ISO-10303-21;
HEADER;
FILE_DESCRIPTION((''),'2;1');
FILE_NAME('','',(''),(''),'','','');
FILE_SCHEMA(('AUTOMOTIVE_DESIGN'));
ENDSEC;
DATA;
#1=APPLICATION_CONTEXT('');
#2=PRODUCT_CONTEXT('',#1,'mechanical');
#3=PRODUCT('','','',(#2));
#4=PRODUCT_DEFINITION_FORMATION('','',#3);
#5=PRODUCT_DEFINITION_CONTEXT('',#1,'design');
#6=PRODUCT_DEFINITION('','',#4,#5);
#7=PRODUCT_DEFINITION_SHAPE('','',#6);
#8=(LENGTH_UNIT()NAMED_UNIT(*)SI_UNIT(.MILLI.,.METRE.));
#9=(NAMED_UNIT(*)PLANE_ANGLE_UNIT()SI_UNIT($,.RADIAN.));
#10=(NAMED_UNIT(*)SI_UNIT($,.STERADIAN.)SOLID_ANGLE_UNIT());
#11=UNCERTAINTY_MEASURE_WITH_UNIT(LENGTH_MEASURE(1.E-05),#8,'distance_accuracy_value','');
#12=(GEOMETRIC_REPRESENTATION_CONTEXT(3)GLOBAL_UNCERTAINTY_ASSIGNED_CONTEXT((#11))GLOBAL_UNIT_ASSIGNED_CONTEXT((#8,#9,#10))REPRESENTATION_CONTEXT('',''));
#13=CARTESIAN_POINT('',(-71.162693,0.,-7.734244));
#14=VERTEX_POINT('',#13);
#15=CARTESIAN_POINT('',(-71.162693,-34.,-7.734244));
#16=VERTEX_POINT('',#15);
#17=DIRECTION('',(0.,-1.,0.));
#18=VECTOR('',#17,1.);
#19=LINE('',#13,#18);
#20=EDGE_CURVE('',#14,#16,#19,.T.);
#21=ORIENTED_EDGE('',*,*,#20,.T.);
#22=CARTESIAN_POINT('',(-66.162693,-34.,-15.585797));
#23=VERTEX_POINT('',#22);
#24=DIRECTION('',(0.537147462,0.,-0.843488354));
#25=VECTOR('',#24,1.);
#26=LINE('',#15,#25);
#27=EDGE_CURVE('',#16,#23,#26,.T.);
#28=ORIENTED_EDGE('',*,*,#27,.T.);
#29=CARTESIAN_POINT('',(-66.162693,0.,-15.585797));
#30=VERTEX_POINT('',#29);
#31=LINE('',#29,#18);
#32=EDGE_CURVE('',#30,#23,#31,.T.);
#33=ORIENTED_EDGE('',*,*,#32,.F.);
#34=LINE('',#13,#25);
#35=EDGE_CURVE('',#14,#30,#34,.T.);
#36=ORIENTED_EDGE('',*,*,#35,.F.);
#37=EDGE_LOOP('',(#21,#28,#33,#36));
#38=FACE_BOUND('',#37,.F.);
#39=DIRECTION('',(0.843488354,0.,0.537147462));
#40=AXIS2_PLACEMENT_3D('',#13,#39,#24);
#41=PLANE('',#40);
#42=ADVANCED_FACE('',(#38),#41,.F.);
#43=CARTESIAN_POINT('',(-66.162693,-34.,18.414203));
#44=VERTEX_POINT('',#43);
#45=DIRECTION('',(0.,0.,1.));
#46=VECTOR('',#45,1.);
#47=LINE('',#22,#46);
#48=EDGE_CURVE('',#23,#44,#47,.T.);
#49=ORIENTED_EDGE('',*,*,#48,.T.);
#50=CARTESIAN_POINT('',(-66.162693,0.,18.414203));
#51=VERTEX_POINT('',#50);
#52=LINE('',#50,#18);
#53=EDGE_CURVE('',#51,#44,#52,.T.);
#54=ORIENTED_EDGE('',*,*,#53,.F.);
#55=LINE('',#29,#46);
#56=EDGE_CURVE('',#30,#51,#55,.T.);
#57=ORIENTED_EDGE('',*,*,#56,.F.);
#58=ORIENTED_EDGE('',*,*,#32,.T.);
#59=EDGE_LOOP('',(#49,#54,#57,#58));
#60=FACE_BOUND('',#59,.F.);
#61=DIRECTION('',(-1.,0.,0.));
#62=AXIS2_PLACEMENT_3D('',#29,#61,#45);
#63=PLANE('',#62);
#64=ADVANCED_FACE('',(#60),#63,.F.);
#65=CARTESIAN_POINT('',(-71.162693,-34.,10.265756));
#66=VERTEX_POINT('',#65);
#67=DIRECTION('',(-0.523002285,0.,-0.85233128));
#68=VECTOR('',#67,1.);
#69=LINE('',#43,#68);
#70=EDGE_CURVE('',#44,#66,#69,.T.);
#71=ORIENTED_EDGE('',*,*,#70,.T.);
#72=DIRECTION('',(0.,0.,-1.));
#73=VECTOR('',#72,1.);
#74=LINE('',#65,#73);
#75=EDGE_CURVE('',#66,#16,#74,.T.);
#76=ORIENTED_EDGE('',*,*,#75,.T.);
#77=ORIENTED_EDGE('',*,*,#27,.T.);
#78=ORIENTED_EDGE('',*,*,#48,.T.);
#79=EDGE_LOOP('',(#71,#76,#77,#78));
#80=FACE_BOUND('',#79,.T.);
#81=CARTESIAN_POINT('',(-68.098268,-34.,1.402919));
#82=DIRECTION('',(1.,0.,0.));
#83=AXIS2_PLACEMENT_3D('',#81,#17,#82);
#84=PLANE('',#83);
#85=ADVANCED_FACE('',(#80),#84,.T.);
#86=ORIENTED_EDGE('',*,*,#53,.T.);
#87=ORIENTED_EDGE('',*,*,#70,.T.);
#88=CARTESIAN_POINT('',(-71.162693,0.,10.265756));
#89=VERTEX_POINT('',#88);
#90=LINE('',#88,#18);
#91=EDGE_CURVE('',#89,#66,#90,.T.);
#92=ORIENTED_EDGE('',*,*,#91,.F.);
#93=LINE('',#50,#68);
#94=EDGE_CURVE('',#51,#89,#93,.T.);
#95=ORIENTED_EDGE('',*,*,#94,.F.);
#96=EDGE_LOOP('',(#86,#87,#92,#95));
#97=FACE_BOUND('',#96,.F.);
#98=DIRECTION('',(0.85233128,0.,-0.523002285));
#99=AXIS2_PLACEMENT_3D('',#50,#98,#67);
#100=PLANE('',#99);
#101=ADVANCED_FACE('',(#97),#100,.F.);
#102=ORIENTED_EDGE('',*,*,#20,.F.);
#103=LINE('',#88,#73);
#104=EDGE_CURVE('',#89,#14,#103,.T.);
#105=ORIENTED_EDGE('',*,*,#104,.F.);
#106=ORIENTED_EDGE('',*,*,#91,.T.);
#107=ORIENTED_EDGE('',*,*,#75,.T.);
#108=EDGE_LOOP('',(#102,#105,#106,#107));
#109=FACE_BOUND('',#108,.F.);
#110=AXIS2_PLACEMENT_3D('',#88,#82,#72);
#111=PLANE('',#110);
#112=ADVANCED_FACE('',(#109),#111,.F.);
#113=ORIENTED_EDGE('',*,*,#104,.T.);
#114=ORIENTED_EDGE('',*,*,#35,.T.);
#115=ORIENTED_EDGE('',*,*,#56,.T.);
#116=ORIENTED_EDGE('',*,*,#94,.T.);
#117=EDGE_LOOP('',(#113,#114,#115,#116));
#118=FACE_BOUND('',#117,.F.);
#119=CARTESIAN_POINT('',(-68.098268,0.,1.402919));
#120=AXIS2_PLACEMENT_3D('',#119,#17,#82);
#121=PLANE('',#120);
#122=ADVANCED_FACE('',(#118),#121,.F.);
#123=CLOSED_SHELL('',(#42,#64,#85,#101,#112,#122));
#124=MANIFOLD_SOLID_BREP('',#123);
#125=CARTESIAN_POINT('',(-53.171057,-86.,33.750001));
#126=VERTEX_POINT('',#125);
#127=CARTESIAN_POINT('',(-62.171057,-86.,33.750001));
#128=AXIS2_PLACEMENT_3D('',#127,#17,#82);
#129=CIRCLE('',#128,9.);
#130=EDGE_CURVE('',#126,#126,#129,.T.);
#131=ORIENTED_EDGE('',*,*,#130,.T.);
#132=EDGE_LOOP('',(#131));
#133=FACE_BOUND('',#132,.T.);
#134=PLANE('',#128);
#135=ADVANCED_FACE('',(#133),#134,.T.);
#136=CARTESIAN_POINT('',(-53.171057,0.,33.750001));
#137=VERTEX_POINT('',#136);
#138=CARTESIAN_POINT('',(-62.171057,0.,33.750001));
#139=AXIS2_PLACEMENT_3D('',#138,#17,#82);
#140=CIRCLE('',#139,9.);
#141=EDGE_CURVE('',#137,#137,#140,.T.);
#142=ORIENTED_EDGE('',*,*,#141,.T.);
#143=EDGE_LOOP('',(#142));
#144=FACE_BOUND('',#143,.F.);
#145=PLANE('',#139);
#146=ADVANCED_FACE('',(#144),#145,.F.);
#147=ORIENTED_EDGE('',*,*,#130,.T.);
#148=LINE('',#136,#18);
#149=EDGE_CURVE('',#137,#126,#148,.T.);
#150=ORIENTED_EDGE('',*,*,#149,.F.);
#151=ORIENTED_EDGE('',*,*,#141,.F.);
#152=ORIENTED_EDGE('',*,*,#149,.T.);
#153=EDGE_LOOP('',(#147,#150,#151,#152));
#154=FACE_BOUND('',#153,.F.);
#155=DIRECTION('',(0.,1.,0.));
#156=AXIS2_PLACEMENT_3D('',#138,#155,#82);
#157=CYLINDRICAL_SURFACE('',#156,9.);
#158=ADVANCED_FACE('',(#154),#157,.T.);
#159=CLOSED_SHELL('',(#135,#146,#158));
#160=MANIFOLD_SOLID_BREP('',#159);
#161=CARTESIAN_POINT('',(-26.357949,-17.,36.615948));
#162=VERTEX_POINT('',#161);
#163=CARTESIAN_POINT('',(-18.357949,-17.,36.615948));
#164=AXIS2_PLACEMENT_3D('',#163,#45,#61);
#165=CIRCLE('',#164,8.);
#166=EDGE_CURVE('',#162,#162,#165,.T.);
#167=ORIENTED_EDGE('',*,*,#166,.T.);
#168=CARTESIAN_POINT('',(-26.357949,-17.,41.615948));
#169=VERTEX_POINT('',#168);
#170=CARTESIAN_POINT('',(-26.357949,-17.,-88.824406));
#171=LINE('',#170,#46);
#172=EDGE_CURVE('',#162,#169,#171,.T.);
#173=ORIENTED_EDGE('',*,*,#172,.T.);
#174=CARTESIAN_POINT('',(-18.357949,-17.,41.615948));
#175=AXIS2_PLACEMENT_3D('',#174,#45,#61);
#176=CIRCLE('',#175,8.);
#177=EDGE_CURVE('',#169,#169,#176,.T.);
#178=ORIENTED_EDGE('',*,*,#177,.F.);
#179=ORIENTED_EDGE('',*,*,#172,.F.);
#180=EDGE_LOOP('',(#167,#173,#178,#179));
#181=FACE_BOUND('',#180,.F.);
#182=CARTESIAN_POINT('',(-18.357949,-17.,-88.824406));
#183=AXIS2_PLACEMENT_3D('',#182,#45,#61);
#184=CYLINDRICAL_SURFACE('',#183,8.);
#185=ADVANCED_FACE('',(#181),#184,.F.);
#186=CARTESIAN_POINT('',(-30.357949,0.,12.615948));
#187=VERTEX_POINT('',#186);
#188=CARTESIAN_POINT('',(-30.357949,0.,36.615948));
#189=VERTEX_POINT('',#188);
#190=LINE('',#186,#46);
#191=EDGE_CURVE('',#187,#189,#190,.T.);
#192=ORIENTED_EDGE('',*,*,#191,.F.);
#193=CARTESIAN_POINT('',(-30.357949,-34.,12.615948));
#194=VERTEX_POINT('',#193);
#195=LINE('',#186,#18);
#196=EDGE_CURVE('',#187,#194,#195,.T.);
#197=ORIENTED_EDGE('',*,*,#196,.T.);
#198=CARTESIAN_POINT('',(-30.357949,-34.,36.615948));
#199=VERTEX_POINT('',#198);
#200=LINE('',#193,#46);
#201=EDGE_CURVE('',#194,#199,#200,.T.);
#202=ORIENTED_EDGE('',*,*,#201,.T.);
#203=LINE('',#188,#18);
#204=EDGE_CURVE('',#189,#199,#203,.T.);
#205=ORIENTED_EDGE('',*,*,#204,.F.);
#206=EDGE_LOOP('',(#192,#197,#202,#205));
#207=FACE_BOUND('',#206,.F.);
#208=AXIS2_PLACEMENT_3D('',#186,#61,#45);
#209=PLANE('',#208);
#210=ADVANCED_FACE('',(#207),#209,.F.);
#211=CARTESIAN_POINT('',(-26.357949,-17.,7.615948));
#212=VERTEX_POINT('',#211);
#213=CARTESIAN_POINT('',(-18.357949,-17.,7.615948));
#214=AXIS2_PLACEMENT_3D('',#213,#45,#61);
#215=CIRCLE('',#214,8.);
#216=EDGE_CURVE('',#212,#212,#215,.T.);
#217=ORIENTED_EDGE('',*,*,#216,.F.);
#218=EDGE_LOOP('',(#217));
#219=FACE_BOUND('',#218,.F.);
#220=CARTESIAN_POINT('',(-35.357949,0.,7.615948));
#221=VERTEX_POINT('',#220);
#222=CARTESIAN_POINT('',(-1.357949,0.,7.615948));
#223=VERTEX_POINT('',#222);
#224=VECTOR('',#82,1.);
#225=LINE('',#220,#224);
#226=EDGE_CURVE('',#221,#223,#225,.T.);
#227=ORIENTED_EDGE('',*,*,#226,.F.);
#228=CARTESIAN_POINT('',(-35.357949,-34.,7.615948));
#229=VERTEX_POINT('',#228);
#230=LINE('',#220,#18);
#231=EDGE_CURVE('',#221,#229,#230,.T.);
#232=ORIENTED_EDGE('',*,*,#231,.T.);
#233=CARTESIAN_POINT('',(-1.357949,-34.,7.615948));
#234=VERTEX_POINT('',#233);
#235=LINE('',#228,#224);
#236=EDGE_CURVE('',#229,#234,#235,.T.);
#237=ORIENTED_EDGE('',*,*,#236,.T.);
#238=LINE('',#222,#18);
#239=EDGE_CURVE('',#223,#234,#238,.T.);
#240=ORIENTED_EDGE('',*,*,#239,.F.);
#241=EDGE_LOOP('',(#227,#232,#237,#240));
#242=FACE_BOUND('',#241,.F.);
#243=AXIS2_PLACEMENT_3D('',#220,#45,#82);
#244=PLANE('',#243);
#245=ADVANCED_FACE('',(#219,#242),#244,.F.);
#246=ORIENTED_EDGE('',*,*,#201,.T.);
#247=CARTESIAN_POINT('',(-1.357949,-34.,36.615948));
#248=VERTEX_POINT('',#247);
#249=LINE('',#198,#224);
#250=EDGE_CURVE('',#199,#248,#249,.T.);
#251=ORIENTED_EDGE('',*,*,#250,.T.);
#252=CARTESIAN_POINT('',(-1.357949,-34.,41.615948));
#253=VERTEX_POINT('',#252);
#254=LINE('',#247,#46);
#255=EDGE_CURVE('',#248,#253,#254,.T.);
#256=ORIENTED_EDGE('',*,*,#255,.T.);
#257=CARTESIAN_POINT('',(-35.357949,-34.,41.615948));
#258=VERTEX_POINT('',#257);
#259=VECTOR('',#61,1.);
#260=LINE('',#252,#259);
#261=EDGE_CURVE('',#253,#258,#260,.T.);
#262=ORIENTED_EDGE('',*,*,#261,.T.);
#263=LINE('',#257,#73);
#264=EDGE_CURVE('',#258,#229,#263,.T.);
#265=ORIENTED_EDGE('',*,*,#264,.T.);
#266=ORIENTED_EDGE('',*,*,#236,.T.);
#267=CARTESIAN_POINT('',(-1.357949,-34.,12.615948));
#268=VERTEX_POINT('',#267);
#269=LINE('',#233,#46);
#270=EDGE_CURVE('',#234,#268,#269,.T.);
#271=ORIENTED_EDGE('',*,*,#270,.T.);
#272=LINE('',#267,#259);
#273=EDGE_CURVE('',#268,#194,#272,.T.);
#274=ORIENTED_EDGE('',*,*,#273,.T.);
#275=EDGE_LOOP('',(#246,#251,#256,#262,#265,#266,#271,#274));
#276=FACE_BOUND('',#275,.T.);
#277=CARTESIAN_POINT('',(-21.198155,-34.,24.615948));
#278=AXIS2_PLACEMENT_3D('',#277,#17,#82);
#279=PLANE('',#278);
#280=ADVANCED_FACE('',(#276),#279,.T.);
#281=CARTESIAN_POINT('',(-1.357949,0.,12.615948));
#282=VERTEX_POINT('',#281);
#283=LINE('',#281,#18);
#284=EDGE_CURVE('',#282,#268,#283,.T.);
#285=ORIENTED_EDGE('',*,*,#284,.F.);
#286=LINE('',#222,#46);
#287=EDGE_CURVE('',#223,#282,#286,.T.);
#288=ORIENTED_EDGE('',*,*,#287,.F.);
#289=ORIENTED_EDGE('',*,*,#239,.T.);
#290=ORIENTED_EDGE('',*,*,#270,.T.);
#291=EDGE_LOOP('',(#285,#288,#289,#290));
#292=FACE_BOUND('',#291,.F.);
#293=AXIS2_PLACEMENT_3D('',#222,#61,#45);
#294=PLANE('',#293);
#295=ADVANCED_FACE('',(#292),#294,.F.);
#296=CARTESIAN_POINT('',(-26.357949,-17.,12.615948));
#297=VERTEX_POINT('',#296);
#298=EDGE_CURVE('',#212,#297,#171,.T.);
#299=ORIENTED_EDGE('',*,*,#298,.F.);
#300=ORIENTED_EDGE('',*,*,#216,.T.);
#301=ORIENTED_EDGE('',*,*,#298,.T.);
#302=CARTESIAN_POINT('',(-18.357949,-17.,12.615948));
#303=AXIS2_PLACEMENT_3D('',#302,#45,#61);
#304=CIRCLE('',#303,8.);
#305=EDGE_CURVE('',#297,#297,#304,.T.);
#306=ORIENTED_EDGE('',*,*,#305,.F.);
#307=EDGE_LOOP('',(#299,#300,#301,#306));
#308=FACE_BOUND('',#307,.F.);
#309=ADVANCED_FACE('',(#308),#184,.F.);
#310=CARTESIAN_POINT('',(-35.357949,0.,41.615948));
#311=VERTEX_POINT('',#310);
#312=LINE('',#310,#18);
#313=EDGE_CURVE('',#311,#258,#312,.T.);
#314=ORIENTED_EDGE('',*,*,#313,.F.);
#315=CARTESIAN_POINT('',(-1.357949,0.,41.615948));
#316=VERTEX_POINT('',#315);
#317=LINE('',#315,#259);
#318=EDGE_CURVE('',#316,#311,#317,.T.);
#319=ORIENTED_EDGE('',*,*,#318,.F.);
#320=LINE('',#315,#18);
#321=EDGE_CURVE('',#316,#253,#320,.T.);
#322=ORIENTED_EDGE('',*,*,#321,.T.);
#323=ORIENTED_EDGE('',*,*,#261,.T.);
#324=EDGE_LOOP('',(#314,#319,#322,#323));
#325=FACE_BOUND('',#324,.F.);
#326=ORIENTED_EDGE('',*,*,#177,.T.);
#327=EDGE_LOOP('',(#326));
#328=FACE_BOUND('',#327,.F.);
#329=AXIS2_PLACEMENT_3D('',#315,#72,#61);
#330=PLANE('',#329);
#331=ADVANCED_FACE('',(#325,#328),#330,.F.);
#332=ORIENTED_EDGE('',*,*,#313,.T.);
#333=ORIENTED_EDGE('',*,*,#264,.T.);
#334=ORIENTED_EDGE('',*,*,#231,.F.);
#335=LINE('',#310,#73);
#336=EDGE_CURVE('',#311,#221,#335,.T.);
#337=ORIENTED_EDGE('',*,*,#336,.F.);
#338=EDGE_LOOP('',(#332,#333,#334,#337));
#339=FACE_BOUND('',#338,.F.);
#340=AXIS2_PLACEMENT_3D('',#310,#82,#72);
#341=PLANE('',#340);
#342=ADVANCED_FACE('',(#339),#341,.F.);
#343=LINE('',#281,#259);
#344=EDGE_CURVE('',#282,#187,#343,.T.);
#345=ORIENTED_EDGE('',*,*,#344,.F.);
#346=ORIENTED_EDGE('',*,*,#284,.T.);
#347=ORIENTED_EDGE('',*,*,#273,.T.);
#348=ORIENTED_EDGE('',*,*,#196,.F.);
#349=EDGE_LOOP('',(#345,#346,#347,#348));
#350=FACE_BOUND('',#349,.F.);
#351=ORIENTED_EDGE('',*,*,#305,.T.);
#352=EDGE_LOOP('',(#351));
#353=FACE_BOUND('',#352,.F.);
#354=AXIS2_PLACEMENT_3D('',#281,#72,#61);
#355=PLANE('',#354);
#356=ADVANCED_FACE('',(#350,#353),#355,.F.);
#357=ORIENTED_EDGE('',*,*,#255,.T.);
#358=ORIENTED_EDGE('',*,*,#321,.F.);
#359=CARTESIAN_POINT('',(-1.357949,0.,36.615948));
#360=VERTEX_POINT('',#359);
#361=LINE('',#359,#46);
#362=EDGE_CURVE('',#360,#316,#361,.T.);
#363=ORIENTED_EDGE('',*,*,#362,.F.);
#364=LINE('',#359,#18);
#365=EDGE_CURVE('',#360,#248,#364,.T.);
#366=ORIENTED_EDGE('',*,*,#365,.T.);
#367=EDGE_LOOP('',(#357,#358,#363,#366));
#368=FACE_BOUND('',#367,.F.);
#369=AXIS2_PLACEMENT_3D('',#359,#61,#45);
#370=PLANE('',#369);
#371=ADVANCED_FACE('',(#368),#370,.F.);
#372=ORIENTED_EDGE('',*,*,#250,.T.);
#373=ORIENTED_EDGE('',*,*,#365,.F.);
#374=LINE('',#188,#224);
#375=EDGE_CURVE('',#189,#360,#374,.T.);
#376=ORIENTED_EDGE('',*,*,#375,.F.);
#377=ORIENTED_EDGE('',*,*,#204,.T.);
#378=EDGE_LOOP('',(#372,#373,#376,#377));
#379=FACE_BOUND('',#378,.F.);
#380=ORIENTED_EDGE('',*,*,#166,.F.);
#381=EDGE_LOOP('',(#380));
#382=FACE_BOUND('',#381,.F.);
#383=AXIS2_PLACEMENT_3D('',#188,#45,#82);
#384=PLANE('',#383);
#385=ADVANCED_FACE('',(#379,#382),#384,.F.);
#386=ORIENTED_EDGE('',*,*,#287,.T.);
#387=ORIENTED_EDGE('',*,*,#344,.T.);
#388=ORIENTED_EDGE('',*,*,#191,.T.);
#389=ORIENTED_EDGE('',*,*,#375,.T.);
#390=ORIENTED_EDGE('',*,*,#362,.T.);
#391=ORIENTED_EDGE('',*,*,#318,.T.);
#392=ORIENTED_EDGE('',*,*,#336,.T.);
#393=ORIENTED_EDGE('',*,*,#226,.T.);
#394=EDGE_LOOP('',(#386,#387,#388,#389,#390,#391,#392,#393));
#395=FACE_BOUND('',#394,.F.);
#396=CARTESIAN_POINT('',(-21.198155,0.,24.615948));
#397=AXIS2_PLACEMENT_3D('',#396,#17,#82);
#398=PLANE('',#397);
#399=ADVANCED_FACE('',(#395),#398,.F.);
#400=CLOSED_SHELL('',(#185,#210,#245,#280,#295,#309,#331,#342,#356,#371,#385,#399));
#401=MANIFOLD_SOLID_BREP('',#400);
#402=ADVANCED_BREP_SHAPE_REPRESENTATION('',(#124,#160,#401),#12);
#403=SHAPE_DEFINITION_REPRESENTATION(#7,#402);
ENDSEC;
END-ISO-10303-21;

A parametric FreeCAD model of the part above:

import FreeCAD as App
import Part
import Sketcher

V = App.Vector

doc = App.newDocument("Part")
params = doc.addObject("Spreadsheet::Sheet", "Params")
for row, (alias, value) in enumerate([
    ("sketch1_diameter", "18 mm"),
    ("pad1_length", "86 mm"),
    ("sketch2_width", "34 mm"),
    ("sketch2_width2", "29 mm"),
    ("sketch2_height", "5 mm"),
    ("sketch2_height2", "18 mm"),
    ("pad2_length", "34 mm"),
    ("sketch3_diameter", "16 mm"),
    ("hole_diameter", "16 mm"),
], start=1):
    params.set(f"A{row}", alias)
    params.set(f"B{row}", "=" + value)
    params.setAlias(f"B{row}", alias)

body = doc.addObject("PartDesign::Body", "Body")

# Sketch on XZ plane
sketch1 = body.newObject("Sketcher::SketchObject", "Sketch")
sketch1.AttachmentSupport = (doc.getObject("XZ_Plane"), [""])
sketch1.MapMode = "FlatFace"
sketch1.addGeometry(Part.Circle(V(-62, 34, 0), V(0, 0, 1), 9), False)
sketch1.addConstraint([
    Sketcher.Constraint("Diameter", 0, 18.0),
    Sketcher.Constraint("DistanceY", -1, 1, 0, 3, 33.750001),
    Sketcher.Constraint("DistanceX", 0, 3, -1, 1, 62.171057),
])
sketch1.setExpression("Constraints[0]", "Params.sketch1_diameter")
pad1 = body.newObject("PartDesign::Pad", "Pad")
pad1.Profile = sketch1
pad1.setExpression("Length", "Params.pad1_length")
body2 = doc.addObject("PartDesign::Body", "Body001")
body2.AllowCompound = True

# Sketch on XZ plane
sketch2 = body2.newObject("Sketcher::SketchObject", "Sketch001")
sketch2.AttachmentSupport = (doc.getObject("XZ_Plane001"), [""])
sketch2.MapMode = "FlatFace"
sketch2.addGeometry([
    Part.LineSegment(V(-1.4, 41.6, 0), V(-35.4, 41.6, 0)),  # 0
    Part.LineSegment(V(-35.4, 41.6, 0), V(-35.4, 7.6, 0)),  # 1
    Part.LineSegment(V(-35.4, 7.6, 0), V(-1.4, 7.6, 0)),  # 2
    Part.LineSegment(V(-1.4, 7.6, 0), V(-1.4, 12.6, 0)),  # 3
    Part.LineSegment(V(-1.4, 12.6, 0), V(-30.4, 12.6, 0)),  # 4
    Part.LineSegment(V(-30.4, 12.6, 0), V(-30.4, 36.6, 0)),  # 5
    Part.LineSegment(V(-30.4, 36.6, 0), V(-1.4, 36.6, 0)),  # 6
    Part.LineSegment(V(-1.4, 36.6, 0), V(-1.4, 41.6, 0)),  # 7
    Part.LineSegment(V(-66.2, -15.6, 0), V(-66.2, 18.4, 0)),  # 8
    Part.LineSegment(V(-66.2, 18.4, 0), V(-71.2, 10.3, 0)),  # 9
    Part.LineSegment(V(-71.2, 10.3, 0), V(-71.2, -7.7, 0)),  # 10
    Part.LineSegment(V(-71.2, -7.7, 0), V(-66.2, -15.6, 0)),  # 11
], False)
sketch2.addConstraint([
    Sketcher.Constraint("Coincident", 0, 2, 1, 1),
    Sketcher.Constraint("Coincident", 1, 2, 2, 1),
    Sketcher.Constraint("Coincident", 2, 2, 3, 1),
    Sketcher.Constraint("Coincident", 3, 2, 4, 1),
    Sketcher.Constraint("Coincident", 4, 2, 5, 1),
    Sketcher.Constraint("Coincident", 5, 2, 6, 1),
    Sketcher.Constraint("Coincident", 6, 2, 7, 1),
    Sketcher.Constraint("Coincident", 7, 2, 0, 1),
    Sketcher.Constraint("Coincident", 8, 2, 9, 1),
    Sketcher.Constraint("Coincident", 9, 2, 10, 1),
    Sketcher.Constraint("Coincident", 10, 2, 11, 1),
    Sketcher.Constraint("Coincident", 11, 2, 8, 1),
    Sketcher.Constraint("Horizontal", 0),
    Sketcher.Constraint("Vertical", 1),
    Sketcher.Constraint("Horizontal", 2),
    Sketcher.Constraint("Vertical", 3),
    Sketcher.Constraint("Horizontal", 4),
    Sketcher.Constraint("Vertical", 5),
    Sketcher.Constraint("Horizontal", 6),
    Sketcher.Constraint("Vertical", 7),
    Sketcher.Constraint("Vertical", 8),
    Sketcher.Constraint("Vertical", 10),
    Sketcher.Constraint("Vertical", 3, 2, 6, 2),
    Sketcher.Constraint("Equal", 2, 1),
    Sketcher.Constraint("Equal", 3, 7),
    Sketcher.Constraint("Equal", 1, 8),
    Sketcher.Constraint("DistanceX", 0, 2, 0, 1, 34.0),
    Sketcher.Constraint("DistanceX", 4, 2, 4, 1, 29.0),
    Sketcher.Constraint("DistanceY", 3, 1, 3, 2, 5.0),
    Sketcher.Constraint("DistanceY", 10, 2, 10, 1, 18.0),
    Sketcher.Constraint("DistanceX", 9, 2, 8, 2, 5.0),
    Sketcher.Constraint("Distance", 11, 9.308431),
    Sketcher.Constraint("DistanceX", 0, 2, -1, 1, 35.357949),
    Sketcher.Constraint("DistanceY", -1, 1, 0, 2, 41.615948),
    Sketcher.Constraint("DistanceY", 9, 2, 4, 2, 2.350192),
    Sketcher.Constraint("DistanceX", 8, 2, -1, 1, 66.162693),
])
sketch2.setExpression("Constraints[26]", "Params.sketch2_width")
sketch2.setExpression("Constraints[27]", "Params.sketch2_width2")
sketch2.setExpression("Constraints[28]", "Params.sketch2_height")
sketch2.setExpression("Constraints[29]", "Params.sketch2_height2")
pad2 = body2.newObject("PartDesign::Pad", "Pad001")
pad2.Profile = sketch2
pad2.setExpression("Length", "Params.pad2_length")

# Sketch on XY plane
sketch3 = body2.newObject("Sketcher::SketchObject", "Sketch002")
sketch3.AttachmentSupport = (doc.getObject("XY_Plane001"), [""])
sketch3.MapMode = "FlatFace"
sketch3.AttachmentOffset = App.Placement(V(0, 0, 7.615948), App.Rotation())
sketch3.addGeometry(Part.Circle(V(-18, -17, 0), V(0, 0, 1), 8), False)
sketch3.addConstraint([
    Sketcher.Constraint("Diameter", 0, 16.0),
    Sketcher.Constraint("DistanceY", 0, 3, -1, 1, 17.0),
    Sketcher.Constraint("DistanceX", 0, 3, -1, 1, 18.357949),
])
sketch3.setExpression("Constraints[0]", "Params.sketch3_diameter")
doc.recompute()
hole = body2.newObject("PartDesign::Hole", "Hole")
hole.Profile = sketch3
hole.ThreadType = "None"
hole.setExpression("Diameter", "Params.hole_diameter")
hole.DepthType = "ThroughAll"
hole.Reversed = True

doc.recompute()
